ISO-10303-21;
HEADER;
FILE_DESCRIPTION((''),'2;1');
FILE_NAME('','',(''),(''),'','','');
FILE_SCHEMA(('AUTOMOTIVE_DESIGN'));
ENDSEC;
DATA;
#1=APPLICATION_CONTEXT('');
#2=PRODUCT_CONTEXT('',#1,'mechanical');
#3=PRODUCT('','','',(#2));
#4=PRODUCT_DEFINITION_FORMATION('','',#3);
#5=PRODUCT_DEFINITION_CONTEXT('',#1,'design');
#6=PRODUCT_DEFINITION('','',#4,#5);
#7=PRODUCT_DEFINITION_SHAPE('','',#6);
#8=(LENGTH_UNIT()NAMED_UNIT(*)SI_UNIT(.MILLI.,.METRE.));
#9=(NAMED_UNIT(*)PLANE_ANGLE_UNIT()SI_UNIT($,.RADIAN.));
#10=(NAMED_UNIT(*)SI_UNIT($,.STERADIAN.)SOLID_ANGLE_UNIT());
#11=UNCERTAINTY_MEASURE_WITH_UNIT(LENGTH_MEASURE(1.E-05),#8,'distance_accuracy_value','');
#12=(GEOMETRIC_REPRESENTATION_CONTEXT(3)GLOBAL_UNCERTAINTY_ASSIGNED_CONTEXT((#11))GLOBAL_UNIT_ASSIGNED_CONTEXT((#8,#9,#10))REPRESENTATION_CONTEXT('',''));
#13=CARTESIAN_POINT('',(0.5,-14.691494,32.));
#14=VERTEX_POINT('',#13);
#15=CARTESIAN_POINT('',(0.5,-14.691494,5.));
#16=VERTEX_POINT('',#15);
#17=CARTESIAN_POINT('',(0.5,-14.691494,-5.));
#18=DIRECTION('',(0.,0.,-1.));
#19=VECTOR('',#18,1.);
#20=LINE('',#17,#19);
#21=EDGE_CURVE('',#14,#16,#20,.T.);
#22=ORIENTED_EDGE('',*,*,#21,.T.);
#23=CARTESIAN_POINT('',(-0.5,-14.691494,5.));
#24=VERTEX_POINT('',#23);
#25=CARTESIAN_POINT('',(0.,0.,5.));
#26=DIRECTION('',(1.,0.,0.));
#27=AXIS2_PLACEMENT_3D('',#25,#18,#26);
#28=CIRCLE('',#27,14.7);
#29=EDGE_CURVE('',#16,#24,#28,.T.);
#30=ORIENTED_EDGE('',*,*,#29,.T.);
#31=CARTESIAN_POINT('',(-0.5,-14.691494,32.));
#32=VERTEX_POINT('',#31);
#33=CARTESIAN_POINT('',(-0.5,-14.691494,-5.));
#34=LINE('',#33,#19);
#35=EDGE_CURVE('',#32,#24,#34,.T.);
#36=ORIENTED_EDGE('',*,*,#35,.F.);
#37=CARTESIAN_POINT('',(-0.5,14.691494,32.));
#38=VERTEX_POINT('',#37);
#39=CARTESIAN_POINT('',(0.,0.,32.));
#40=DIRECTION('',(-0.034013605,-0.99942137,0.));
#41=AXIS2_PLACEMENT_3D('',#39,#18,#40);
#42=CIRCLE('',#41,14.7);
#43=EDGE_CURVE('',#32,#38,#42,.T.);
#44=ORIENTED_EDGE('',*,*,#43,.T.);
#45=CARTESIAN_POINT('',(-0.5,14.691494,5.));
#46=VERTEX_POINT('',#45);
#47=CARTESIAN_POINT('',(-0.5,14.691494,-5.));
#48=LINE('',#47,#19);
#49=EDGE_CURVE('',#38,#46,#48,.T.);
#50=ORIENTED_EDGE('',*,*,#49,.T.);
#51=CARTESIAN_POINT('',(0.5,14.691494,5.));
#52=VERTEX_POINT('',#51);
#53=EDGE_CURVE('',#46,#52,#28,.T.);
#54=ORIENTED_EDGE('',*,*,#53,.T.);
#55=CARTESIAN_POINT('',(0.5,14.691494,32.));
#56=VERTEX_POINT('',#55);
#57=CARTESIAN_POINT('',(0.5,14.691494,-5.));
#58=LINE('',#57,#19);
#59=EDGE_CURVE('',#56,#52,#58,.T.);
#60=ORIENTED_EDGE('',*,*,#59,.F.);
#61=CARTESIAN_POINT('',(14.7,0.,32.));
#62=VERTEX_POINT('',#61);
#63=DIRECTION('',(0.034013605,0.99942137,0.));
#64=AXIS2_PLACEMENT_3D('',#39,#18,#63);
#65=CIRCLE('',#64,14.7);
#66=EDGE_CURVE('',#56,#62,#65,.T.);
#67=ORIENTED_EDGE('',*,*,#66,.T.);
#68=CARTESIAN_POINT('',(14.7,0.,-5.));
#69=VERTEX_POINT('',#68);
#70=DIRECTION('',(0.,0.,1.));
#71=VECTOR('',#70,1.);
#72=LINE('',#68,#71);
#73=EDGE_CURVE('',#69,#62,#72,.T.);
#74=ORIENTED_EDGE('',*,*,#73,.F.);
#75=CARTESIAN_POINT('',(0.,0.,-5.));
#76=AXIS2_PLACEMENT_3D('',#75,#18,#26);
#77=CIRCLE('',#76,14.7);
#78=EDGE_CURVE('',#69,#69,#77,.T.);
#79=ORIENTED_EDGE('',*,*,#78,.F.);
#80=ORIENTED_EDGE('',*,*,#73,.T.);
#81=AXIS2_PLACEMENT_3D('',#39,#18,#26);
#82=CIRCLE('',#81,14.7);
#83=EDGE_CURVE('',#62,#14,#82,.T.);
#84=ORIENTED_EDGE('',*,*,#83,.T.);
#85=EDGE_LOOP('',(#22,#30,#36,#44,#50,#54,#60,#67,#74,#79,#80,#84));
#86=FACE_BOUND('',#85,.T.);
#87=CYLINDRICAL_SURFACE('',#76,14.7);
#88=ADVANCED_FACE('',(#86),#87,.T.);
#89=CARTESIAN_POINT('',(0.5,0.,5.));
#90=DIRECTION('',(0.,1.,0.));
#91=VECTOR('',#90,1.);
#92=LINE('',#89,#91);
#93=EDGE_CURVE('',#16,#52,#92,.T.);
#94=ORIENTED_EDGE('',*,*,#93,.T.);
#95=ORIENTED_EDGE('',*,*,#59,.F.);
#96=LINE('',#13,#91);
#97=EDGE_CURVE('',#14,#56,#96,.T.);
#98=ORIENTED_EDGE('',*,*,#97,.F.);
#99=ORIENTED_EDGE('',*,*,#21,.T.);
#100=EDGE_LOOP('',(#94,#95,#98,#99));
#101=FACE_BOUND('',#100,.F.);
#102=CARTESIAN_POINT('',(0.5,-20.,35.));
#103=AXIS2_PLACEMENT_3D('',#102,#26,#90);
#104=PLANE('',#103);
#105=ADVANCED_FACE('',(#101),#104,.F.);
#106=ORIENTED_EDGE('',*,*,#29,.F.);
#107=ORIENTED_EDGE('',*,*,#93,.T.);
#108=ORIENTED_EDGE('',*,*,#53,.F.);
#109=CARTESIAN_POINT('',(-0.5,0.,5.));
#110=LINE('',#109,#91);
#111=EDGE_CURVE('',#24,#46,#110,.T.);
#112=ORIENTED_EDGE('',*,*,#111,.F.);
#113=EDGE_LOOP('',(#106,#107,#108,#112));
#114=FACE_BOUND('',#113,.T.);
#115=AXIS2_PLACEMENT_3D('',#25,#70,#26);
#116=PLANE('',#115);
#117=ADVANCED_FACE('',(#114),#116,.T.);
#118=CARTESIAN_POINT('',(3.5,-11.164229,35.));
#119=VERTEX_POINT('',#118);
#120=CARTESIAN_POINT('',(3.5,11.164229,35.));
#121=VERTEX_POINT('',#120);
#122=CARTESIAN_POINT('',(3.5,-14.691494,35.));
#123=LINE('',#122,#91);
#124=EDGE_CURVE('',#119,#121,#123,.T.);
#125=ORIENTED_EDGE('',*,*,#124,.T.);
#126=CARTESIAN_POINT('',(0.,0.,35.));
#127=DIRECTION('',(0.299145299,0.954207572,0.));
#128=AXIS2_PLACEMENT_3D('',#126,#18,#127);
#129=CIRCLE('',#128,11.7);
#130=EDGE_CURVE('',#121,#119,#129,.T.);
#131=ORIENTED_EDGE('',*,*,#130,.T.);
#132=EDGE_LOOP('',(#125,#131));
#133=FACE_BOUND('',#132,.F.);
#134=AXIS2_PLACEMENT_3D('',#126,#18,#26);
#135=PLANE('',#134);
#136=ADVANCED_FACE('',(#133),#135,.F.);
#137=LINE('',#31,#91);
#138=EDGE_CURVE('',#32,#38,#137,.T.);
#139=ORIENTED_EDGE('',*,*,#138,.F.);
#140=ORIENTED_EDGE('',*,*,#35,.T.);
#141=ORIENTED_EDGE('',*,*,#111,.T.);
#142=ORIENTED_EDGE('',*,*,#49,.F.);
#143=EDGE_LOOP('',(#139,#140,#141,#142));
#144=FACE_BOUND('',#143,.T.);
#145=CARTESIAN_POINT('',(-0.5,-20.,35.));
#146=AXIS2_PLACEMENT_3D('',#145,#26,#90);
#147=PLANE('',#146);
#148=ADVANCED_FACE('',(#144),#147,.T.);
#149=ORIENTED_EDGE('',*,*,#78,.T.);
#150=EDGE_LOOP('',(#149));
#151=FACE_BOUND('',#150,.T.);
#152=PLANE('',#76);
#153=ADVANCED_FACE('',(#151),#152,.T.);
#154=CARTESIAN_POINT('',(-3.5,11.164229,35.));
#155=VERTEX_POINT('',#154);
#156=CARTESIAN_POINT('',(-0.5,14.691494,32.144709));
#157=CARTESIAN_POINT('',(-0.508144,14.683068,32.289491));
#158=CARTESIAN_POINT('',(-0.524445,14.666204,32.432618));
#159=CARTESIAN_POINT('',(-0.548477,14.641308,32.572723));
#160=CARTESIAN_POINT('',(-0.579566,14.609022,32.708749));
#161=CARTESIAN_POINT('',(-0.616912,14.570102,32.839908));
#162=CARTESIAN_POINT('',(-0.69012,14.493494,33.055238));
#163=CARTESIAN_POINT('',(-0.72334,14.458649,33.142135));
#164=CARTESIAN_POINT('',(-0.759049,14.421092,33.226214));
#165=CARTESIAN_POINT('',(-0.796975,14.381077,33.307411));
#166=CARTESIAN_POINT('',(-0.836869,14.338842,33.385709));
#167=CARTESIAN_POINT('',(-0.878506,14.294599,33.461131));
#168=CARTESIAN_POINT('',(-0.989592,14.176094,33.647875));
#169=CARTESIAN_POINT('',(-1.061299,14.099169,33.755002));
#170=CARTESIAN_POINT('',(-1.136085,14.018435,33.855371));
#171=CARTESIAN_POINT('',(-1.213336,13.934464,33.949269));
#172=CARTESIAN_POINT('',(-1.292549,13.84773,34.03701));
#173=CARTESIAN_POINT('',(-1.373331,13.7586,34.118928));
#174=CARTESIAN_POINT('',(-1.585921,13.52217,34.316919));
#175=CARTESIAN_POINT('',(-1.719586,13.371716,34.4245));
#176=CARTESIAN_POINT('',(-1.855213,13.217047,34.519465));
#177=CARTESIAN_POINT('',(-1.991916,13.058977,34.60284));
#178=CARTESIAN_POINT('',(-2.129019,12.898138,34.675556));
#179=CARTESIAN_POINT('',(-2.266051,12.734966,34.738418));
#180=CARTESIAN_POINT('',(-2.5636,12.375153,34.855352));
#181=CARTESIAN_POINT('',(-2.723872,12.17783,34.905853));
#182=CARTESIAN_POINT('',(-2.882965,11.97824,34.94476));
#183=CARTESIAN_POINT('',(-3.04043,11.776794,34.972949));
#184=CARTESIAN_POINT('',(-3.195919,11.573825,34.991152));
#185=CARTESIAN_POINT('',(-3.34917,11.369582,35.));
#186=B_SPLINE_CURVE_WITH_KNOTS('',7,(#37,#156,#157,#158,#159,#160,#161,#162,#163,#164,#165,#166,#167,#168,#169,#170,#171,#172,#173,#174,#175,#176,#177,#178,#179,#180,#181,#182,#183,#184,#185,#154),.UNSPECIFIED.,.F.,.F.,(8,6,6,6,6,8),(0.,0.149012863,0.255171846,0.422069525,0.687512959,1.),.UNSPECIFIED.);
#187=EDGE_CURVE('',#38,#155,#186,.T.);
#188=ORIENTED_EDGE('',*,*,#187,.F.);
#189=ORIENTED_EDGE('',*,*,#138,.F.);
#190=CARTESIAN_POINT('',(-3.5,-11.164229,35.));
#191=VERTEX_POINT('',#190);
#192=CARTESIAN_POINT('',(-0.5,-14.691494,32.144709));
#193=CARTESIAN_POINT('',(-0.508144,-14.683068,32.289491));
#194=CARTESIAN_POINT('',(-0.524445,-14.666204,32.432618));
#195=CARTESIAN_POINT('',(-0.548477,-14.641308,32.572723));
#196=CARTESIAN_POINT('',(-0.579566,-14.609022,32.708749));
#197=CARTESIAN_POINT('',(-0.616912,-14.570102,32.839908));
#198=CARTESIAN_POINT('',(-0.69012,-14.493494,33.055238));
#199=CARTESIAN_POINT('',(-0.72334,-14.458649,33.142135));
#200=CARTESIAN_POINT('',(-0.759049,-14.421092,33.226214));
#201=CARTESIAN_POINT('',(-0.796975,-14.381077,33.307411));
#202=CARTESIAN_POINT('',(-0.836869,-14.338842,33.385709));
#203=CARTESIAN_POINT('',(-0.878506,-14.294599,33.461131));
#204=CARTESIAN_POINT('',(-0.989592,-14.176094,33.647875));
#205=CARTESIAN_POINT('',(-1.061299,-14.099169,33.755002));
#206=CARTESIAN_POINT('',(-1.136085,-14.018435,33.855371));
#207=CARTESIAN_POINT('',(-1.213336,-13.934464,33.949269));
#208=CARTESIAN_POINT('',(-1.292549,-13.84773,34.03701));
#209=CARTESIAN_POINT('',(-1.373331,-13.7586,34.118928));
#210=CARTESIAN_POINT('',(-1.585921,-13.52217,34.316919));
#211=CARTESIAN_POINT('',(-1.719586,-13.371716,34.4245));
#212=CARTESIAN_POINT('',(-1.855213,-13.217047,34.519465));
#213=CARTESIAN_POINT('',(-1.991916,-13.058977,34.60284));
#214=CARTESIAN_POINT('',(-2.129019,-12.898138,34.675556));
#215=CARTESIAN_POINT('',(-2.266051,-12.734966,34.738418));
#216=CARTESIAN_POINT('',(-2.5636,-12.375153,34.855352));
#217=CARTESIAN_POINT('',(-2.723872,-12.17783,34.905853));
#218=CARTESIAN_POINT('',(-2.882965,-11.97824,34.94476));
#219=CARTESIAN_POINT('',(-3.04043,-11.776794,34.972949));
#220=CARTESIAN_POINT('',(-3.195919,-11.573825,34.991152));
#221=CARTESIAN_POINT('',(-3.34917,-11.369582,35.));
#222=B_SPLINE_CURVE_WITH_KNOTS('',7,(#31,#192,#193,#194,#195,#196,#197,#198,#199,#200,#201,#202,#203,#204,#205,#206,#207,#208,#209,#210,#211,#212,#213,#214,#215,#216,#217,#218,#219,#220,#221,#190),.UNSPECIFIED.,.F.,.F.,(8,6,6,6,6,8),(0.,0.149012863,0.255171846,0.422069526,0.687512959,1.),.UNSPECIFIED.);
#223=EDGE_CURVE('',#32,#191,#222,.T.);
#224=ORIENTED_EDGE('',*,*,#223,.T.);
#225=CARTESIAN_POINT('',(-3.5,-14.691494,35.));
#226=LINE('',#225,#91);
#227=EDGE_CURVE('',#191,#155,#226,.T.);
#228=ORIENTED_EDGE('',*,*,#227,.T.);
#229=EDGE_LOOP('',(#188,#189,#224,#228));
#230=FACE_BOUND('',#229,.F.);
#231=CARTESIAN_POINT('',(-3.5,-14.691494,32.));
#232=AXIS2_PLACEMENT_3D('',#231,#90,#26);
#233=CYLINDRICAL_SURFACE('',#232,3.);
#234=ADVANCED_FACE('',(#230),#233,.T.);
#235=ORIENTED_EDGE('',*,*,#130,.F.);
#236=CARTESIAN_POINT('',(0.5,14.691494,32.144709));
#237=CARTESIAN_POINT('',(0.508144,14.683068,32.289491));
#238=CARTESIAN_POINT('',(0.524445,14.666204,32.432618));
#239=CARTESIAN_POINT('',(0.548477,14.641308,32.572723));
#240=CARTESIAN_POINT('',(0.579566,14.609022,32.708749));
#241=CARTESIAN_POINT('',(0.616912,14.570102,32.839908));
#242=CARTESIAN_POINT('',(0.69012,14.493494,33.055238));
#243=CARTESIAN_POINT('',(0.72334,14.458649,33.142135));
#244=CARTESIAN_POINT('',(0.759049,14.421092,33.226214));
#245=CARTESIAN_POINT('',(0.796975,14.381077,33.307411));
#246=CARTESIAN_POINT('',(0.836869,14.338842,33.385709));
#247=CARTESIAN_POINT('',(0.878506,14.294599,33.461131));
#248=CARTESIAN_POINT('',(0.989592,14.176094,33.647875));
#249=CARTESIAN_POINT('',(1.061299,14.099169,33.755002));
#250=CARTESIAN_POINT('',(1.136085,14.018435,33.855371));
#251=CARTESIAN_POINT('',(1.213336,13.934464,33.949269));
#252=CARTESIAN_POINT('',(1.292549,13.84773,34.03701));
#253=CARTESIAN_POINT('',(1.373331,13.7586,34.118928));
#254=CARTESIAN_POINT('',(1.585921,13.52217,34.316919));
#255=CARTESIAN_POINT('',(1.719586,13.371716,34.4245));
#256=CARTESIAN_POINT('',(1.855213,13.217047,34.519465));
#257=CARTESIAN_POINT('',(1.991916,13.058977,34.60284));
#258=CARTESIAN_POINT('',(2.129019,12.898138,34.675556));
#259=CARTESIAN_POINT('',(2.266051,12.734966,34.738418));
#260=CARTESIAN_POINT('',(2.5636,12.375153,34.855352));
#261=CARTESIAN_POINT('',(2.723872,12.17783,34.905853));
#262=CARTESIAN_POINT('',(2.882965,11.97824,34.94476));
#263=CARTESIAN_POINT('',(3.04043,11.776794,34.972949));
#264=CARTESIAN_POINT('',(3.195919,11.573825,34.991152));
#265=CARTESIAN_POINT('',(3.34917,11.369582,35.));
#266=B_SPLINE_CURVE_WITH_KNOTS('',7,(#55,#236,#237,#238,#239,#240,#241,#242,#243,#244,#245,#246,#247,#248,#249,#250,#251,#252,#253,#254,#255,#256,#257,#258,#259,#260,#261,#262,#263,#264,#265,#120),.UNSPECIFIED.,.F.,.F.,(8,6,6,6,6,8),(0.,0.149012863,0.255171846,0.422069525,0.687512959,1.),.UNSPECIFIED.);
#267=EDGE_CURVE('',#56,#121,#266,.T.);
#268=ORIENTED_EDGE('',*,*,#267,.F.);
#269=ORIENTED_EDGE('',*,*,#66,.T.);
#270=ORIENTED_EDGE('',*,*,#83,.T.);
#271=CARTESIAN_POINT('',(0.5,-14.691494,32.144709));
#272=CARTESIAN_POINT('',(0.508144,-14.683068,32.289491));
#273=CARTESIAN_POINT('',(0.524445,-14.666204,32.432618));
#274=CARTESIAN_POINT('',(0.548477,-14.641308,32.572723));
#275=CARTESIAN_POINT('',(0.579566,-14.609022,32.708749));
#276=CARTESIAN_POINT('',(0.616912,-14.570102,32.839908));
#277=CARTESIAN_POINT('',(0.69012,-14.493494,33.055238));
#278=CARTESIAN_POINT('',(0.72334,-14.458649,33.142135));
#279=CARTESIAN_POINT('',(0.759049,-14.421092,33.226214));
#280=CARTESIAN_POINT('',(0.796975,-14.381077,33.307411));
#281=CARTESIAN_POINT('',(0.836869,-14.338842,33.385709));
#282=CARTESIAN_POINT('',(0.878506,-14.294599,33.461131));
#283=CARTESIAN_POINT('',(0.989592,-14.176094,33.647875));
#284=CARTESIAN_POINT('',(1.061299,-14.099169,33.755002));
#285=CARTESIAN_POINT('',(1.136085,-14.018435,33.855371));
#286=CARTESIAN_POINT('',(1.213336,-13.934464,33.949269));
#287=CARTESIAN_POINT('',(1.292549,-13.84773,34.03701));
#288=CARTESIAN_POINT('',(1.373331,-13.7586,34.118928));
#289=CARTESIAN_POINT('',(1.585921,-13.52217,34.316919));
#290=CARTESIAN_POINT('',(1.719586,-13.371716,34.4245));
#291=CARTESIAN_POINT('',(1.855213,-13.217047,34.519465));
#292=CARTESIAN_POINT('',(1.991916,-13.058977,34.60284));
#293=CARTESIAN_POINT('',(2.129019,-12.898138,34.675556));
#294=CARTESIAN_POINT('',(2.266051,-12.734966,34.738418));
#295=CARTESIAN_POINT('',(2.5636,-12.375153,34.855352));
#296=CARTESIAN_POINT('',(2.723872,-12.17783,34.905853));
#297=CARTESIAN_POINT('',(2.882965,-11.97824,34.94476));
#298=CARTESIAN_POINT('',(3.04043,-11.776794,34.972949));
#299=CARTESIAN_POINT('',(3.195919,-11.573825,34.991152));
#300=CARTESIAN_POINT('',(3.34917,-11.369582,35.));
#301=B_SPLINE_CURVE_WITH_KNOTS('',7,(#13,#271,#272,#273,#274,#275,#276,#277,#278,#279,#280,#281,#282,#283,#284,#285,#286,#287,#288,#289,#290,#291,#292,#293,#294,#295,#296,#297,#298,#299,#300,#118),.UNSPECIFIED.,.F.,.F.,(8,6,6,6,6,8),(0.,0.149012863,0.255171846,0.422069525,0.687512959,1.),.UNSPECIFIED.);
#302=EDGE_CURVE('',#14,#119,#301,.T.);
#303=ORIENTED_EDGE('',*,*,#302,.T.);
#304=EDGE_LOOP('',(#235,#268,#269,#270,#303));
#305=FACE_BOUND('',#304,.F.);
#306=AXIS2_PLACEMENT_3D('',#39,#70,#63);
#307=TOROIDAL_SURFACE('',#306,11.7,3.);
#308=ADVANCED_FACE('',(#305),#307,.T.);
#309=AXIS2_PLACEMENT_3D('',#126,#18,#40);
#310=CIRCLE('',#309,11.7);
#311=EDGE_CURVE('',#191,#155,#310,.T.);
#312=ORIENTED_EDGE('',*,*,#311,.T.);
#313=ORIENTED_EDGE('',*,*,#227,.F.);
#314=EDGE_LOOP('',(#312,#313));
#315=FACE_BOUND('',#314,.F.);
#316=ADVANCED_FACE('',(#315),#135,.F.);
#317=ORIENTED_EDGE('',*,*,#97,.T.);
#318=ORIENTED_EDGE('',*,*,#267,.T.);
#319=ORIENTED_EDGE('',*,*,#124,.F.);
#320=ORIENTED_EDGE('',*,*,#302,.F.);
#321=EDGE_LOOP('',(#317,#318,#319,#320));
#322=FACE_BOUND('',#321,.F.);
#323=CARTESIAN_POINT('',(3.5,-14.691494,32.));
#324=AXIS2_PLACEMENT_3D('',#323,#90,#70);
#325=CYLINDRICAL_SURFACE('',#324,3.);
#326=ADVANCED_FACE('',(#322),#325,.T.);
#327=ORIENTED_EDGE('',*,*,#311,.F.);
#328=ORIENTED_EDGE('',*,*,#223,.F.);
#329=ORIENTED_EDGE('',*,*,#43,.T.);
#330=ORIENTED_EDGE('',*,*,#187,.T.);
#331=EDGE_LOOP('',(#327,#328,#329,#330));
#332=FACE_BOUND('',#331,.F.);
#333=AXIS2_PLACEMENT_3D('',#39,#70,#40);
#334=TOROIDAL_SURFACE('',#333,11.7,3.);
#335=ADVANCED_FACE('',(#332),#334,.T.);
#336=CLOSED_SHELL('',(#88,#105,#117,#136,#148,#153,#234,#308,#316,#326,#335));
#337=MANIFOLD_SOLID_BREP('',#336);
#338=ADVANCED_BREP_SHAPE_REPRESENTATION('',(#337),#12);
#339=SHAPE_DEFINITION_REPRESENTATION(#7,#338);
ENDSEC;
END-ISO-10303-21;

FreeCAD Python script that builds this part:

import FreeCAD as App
import Part
import Sketcher

V = App.Vector


def edges_at(feature, points):
    """Names of the edges that pass closest to the given points."""
    edges = feature.Shape.Edges
    near = lambda p: min(range(len(edges)), key=lambda i: edges[i].distToShape(Part.Vertex(*p))[0])
    return sorted({f"Edge{near(p) + 1}" for p in points})


def add_polygon(sketch, points):
    """Adds a closed chain of lines whose ends are joined by coincident constraints."""
    first, n = sketch.GeometryCount, len(points)
    for a, b in zip(points, points[1:] + points[:1]):
        sketch.addGeometry(Part.LineSegment(App.Vector(*a, 0), App.Vector(*b, 0)), False)
    for i in range(n):
        sketch.addConstraint(Sketcher.Constraint("Coincident", first + i, 2, first + (i + 1) % n, 1))

doc = App.newDocument("Part")
body = doc.addObject("PartDesign::Body", "Body")

# Sketch on XY plane
sketch1 = body.newObject("Sketcher::SketchObject", "Sketch")
sketch1.AttachmentSupport = (doc.getObject("XY_Plane"), [""])
sketch1.MapMode = "FlatFace"
sketch1.AttachmentOffset = App.Placement(V(0, 0, -5), App.Rotation())
sketch1.addGeometry(Part.Circle(V(0, 0, 0), V(0, 0, 1), 14.7), False)
sketch1.addConstraint([
    Sketcher.Constraint("Coincident", 0, 3, -1, 1),
    Sketcher.Constraint("Diameter", 0, 29.4),
])
pad1 = body.newObject("PartDesign::Pad", "Pad")
pad1.Profile = sketch1
pad1.Length = 40

# Sketch on XY plane
sketch2 = body.newObject("Sketcher::SketchObject", "Sketch001")
sketch2.AttachmentSupport = (doc.getObject("XY_Plane"), [""])
sketch2.MapMode = "FlatFace"
sketch2.AttachmentOffset = App.Placement(V(0, 0, 35), App.Rotation())
add_polygon(sketch2, [(-0.5, 20), (-0.5, -20), (0.5, -20), (0.5, 20)])  # lines 0-3
sketch2.addConstraint([
    Sketcher.Constraint("Vertical", 0),
    Sketcher.Constraint("Horizontal", 1),
    Sketcher.Constraint("Vertical", 2),
    Sketcher.Constraint("Horizontal", 3),
    Sketcher.Constraint("Symmetric", 0, 2, 2, 2, -1, 1),
    Sketcher.Constraint("DistanceX", 1, 1, 1, 2, 1.0),
    Sketcher.Constraint("DistanceY", 0, 2, 0, 1, 40.0),
])
pocket1 = body.newObject("PartDesign::Pocket", "Pocket")
pocket1.Profile = sketch2
pocket1.Length = 30
doc.recompute()

fillet = body.newObject("PartDesign::Fillet", "Fillet")
fillet.Base = (pocket1, edges_at(pocket1, [
    (-14.7, 0, 35),
    (-0.5, 0, 35),
    (10.57, -10.216, 35),
    (0.5, 0, 35),
    (10.57, 10.216, 35),
]))
fillet.Radius = 3

doc.recompute()
